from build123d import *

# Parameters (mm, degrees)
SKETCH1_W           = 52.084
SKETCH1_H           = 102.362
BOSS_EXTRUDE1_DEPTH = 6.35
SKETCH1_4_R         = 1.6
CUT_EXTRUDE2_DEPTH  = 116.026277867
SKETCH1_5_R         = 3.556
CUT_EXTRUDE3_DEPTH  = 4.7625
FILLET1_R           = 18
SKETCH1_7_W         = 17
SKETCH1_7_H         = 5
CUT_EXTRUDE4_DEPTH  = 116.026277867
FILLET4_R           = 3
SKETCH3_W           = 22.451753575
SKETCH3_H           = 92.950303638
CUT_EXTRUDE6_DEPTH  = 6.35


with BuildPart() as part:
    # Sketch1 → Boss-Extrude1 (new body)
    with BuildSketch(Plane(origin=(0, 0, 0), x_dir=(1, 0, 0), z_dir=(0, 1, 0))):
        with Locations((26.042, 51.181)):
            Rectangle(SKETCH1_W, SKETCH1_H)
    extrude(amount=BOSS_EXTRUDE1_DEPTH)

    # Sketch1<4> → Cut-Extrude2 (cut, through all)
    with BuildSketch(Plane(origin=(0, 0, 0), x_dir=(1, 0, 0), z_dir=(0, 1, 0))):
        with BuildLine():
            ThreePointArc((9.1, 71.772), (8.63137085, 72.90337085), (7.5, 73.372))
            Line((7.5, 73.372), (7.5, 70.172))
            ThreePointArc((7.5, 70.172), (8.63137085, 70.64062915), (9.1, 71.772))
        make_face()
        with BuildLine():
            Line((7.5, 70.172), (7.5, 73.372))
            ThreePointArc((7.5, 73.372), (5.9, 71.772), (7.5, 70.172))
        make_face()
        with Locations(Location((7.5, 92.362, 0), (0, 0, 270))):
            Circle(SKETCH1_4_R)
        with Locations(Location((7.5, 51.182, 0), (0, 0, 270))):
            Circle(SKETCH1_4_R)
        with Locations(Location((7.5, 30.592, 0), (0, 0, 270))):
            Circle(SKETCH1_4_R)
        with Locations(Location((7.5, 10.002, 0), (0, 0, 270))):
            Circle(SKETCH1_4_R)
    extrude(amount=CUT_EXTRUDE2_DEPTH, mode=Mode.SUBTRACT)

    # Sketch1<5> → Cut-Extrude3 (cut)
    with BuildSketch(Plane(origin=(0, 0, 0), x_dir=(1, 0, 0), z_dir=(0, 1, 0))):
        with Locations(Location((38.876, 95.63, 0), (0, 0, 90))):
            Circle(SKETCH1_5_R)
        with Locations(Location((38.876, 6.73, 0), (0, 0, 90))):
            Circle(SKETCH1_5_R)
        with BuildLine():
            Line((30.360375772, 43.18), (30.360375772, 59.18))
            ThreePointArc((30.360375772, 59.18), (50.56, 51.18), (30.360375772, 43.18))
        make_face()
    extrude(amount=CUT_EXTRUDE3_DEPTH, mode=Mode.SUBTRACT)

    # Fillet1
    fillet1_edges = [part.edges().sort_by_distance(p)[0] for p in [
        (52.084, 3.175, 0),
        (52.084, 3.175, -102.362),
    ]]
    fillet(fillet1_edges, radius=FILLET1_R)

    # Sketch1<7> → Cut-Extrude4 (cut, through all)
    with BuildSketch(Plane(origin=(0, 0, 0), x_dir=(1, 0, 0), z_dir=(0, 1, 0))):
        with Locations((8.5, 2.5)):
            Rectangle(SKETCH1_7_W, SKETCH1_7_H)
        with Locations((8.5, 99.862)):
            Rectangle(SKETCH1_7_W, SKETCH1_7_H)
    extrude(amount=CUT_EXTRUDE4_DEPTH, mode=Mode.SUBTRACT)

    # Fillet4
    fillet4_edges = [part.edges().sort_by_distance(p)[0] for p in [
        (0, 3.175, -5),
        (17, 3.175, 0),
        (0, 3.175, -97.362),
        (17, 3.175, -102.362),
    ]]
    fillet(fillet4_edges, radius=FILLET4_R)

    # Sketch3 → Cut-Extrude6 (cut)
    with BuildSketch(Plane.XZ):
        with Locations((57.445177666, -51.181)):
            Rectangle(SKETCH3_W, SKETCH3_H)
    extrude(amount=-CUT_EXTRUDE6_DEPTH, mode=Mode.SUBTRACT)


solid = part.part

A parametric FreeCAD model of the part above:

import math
import FreeCAD as App
import Part
import Sketcher


def edges_at(feature, points):
    """Names of the edges that pass closest to the given points."""
    edges = feature.Shape.Edges
    near = lambda p: min(range(len(edges)), key=lambda i: edges[i].distToShape(Part.Vertex(*p))[0])
    return sorted({f"Edge{near(p) + 1}" for p in points})

doc = App.newDocument("Part")
body = doc.addObject("PartDesign::Body", "Body")

# Sketch on XZ plane
sketch1 = body.newObject("Sketcher::SketchObject", "Sketch")
sketch1.AttachmentSupport = (doc.getObject("XZ_Plane"), [""])
sketch1.MapMode = "FlatFace"
sketch1.addGeometry([
    Part.LineSegment(App.Vector(0, -102.362, 0), App.Vector(0, 0, 0)),
    Part.LineSegment(App.Vector(0, 0, 0), App.Vector(52.084, 0, 0)),
    Part.LineSegment(App.Vector(52.084, 0, 0), App.Vector(52.084, -102.362, 0)),
    Part.LineSegment(App.Vector(52.084, -102.362, 0), App.Vector(0, -102.362, 0)),
], False)
sketch1.addConstraint([
    Sketcher.Constraint("Coincident", 0, 2, 1, 1),
    Sketcher.Constraint("Coincident", 1, 2, 2, 1),
    Sketcher.Constraint("Coincident", 2, 2, 3, 1),
    Sketcher.Constraint("Coincident", 3, 2, 0, 1),
    Sketcher.Constraint("Vertical", 0),
    Sketcher.Constraint("Horizontal", 1),
    Sketcher.Constraint("Vertical", 2),
    Sketcher.Constraint("Horizontal", 3),
    Sketcher.Constraint("Coincident", 0, 2, -1, 1),
    Sketcher.Constraint("DistanceX", 1, 1, 1, 2, 52.084),
    Sketcher.Constraint("DistanceY", 0, 1, 0, 2, 102.362),
])
pad1 = body.newObject("PartDesign::Pad", "Pad")
pad1.Profile = sketch1
pad1.Length = 6.35
pad1.Reversed = True

# Sketch on XZ plane
sketch2 = body.newObject("Sketcher::SketchObject", "Sketch001")
sketch2.AttachmentSupport = (doc.getObject("XZ_Plane"), [""])
sketch2.MapMode = "FlatFace"
sketch2.addGeometry([
    Part.ArcOfCircle(Part.Circle(App.Vector(7.5, -71.772, 0), App.Vector(0, 0, 1), 1.6), math.radians(-90), math.radians(0)),  # 0
    Part.ArcOfCircle(Part.Circle(App.Vector(7.5, -71.772, 0), App.Vector(0, 0, 1), 1.6), math.radians(90), math.radians(270)),  # 1
    Part.ArcOfCircle(Part.Circle(App.Vector(7.5, -71.772, 0), App.Vector(0, 0, 1), 1.6), math.radians(0), math.radians(90)),  # 2
    Part.Circle(App.Vector(7.5, -92.362, 0), App.Vector(0, 0, 1), 1.6),  # 3
    Part.Circle(App.Vector(7.5, -51.182, 0), App.Vector(0, 0, 1), 1.6),  # 4
    Part.Circle(App.Vector(7.5, -30.592, 0), App.Vector(0, 0, 1), 1.6),  # 5
    Part.Circle(App.Vector(7.5, -10.002, 0), App.Vector(0, 0, 1), 1.6),  # 6
], False)
sketch2.addConstraint([
    Sketcher.Constraint("Tangent", 0, 1, 1, 2),
    Sketcher.Constraint("Tangent", 1, 1, 2, 2),
    Sketcher.Constraint("Tangent", 2, 1, 0, 2),
    Sketcher.Constraint("Equal", 2, 3),
    Sketcher.Constraint("Equal", 3, 4),
    Sketcher.Constraint("Equal", 4, 5),
    Sketcher.Constraint("Equal", 5, 6),
    Sketcher.Constraint("Horizontal", 1, 3, 2, 1),
    Sketcher.Constraint("Vertical", 2, 3, 3, 3),
    Sketcher.Constraint("Vertical", 3, 3, 4, 3),
    Sketcher.Constraint("Vertical", 4, 3, 5, 3),
    Sketcher.Constraint("Vertical", 5, 3, 6, 3),
    Sketcher.Constraint("Vertical", 6, 3, 0, 1),
    Sketcher.Constraint("Vertical", 0, 1, 1, 1),
    Sketcher.Constraint("Diameter", 3, 3.2),
    Sketcher.Constraint("DistanceX", -1, 1, 0, 3, 7.5),
    Sketcher.Constraint("DistanceY", 3, 3, 0, 3, 20.59),
    Sketcher.Constraint("DistanceY", 0, 3, 4, 3, 20.59),
    Sketcher.Constraint("DistanceY", 4, 3, 5, 3, 20.59),
    Sketcher.Constraint("DistanceY", 5, 3, 6, 3, 20.59),
    Sketcher.Constraint("DistanceY", 0, 3, -1, 1, 71.772),
])
pocket1 = body.newObject("PartDesign::Pocket", "Pocket")
pocket1.Profile = sketch2
pocket1.Type = "ThroughAll"

# Sketch on XZ plane
sketch3 = body.newObject("Sketcher::SketchObject", "Sketch002")
sketch3.AttachmentSupport = (doc.getObject("XZ_Plane"), [""])
sketch3.MapMode = "FlatFace"
sketch3.addGeometry([
    Part.Circle(App.Vector(38.876, -95.63, 0), App.Vector(0, 0, 1), 3.556),
    Part.Circle(App.Vector(38.876, -6.73, 0), App.Vector(0, 0, 1), 3.556),
    Part.LineSegment(App.Vector(30.360376, -59.18, 0), App.Vector(30.360376, -43.18, 0)),
    Part.ArcOfCircle(Part.Circle(App.Vector(38.876, -51.18, 0), App.Vector(0, 0, 1), 11.684), math.radians(-136.788216), math.radians(136.788216)),
], False)
sketch3.addConstraint([
    Sketcher.Constraint("Coincident", 2, 1, 3, 1),
    Sketcher.Constraint("Coincident", 3, 2, 2, 2),
    Sketcher.Constraint("Vertical", 2),
    Sketcher.Constraint("Equal", 0, 1),
    Sketcher.Constraint("Vertical", 0, 3, 1, 3),
    Sketcher.Constraint("Vertical", 1, 3, 3, 3),
    Sketcher.Constraint("DistanceY", 2, 1, 2, 2, 16.0),
    Sketcher.Constraint("Diameter", 0, 7.112),
    Sketcher.Constraint("Radius", 3, 11.684),
    Sketcher.Constraint("DistanceY", 0, 3, 1, 3, 88.9),
    Sketcher.Constraint("DistanceY", 0, 3, -1, 1, 95.63),
    Sketcher.Constraint("DistanceY", 3, 3, -1, 1, 51.18),
    Sketcher.Constraint("DistanceX", -1, 1, 0, 3, 38.876),
])
pocket2 = body.newObject("PartDesign::Pocket", "Pocket001")
pocket2.Profile = sketch3
pocket2.Length = 4.7625
doc.recompute()

fillet = body.newObject("PartDesign::Fillet", "Fillet")
fillet.Base = (pocket2, edges_at(pocket2, [(52.084, 3.175, 0), (52.084, 3.175, -102.362)]))
fillet.Radius = 18

# Sketch on XZ plane
sketch4 = body.newObject("Sketcher::SketchObject", "Sketch003")
sketch4.AttachmentSupport = (doc.getObject("XZ_Plane"), [""])
sketch4.MapMode = "FlatFace"
sketch4.addGeometry([
    Part.LineSegment(App.Vector(0, -5, 0), App.Vector(0, 0, 0)),  # 0
    Part.LineSegment(App.Vector(0, 0, 0), App.Vector(17, 0, 0)),  # 1
    Part.LineSegment(App.Vector(17, 0, 0), App.Vector(17, -5, 0)),  # 2
    Part.LineSegment(App.Vector(17, -5, 0), App.Vector(0, -5, 0)),  # 3
    Part.LineSegment(App.Vector(0, -102.362, 0), App.Vector(0, -97.362, 0)),  # 4
    Part.LineSegment(App.Vector(0, -97.362, 0), App.Vector(17, -97.362, 0)),  # 5
    Part.LineSegment(App.Vector(17, -97.362, 0), App.Vector(17, -102.362, 0)),  # 6
    Part.LineSegment(App.Vector(17, -102.362, 0), App.Vector(0, -102.362, 0)),  # 7
], False)
sketch4.addConstraint([
    Sketcher.Constraint("Coincident", 0, 2, 1, 1),
    Sketcher.Constraint("Coincident", 1, 2, 2, 1),
    Sketcher.Constraint("Coincident", 2, 2, 3, 1),
    Sketcher.Constraint("Coincident", 3, 2, 0, 1),
    Sketcher.Constraint("Coincident", 4, 2, 5, 1),
    Sketcher.Constraint("Coincident", 5, 2, 6, 1),
    Sketcher.Constraint("Coincident", 6, 2, 7, 1),
    Sketcher.Constraint("Coincident", 7, 2, 4, 1),
    Sketcher.Constraint("Vertical", 0),
    Sketcher.Constraint("Horizontal", 1),
    Sketcher.Constraint("Vertical", 2),
    Sketcher.Constraint("Horizontal", 3),
    Sketcher.Constraint("Vertical", 4),
    Sketcher.Constraint("Horizontal", 5),
    Sketcher.Constraint("Vertical", 6),
    Sketcher.Constraint("Horizontal", 7),
    Sketcher.Constraint("Coincident", 0, 2, -1, 1),
    Sketcher.Constraint("PointOnObject", 4, 2, -2),
    Sketcher.Constraint("Vertical", 2, 2, 5, 2),
    Sketcher.Constraint("Equal", 2, 4),
    Sketcher.Constraint("DistanceX", 1, 1, 1, 2, 17.0),
    Sketcher.Constraint("DistanceY", 0, 1, 0, 2, 5.0),
    Sketcher.Constraint("DistanceY", 4, 2, -1, 1, 97.362),
])
pocket3 = body.newObject("PartDesign::Pocket", "Pocket002")
pocket3.Profile = sketch4
pocket3.Type = "ThroughAll"
doc.recompute()

fillet2 = body.newObject("PartDesign::Fillet", "Fillet001")
fillet2.Base = (pocket3, edges_at(pocket3, [
    (0, 3.175, -5),
    (17, 3.175, 0),
    (0, 3.175, -97.362),
    (17, 3.175, -102.362),
]))
fillet2.Radius = 3

# Sketch on XZ plane
sketch5 = body.newObject("Sketcher::SketchObject", "Sketch004")
sketch5.AttachmentSupport = (doc.getObject("XZ_Plane"), [""])
sketch5.MapMode = "FlatFace"
sketch5.addGeometry([
    Part.LineSegment(App.Vector(46.219301, -4.705848, 0), App.Vector(46.219301, -97.656152, 0)),
    Part.LineSegment(App.Vector(46.219301, -97.656152, 0), App.Vector(68.671054, -97.656152, 0)),
    Part.LineSegment(App.Vector(68.671054, -97.656152, 0), App.Vector(68.671054, -4.705848, 0)),
    Part.LineSegment(App.Vector(68.671054, -4.705848, 0), App.Vector(46.219301, -4.705848, 0)),
], False)
sketch5.addConstraint([
    Sketcher.Constraint("Coincident", 0, 2, 1, 1),
    Sketcher.Constraint("Coincident", 1, 2, 2, 1),
    Sketcher.Constraint("Coincident", 2, 2, 3, 1),
    Sketcher.Constraint("Coincident", 3, 2, 0, 1),
    Sketcher.Constraint("Vertical", 0),
    Sketcher.Constraint("Horizontal", 1),
    Sketcher.Constraint("Vertical", 2),
    Sketcher.Constraint("Horizontal", 3),
    Sketcher.Constraint("DistanceX", -1, 1, 0, 2, 46.219301),
    Sketcher.Constraint("DistanceX", 1, 1, 1, 2, 22.451754),
    Sketcher.Constraint("DistanceY", 0, 2, 0, 1, 92.950304),
    Sketcher.Constraint("DistanceY", 0, 2, -1, 1, 97.656152),
])
pocket4 = body.newObject("PartDesign::Pocket", "Pocket003")
pocket4.Profile = sketch5
pocket4.Length = 6.35

doc.recompute()
